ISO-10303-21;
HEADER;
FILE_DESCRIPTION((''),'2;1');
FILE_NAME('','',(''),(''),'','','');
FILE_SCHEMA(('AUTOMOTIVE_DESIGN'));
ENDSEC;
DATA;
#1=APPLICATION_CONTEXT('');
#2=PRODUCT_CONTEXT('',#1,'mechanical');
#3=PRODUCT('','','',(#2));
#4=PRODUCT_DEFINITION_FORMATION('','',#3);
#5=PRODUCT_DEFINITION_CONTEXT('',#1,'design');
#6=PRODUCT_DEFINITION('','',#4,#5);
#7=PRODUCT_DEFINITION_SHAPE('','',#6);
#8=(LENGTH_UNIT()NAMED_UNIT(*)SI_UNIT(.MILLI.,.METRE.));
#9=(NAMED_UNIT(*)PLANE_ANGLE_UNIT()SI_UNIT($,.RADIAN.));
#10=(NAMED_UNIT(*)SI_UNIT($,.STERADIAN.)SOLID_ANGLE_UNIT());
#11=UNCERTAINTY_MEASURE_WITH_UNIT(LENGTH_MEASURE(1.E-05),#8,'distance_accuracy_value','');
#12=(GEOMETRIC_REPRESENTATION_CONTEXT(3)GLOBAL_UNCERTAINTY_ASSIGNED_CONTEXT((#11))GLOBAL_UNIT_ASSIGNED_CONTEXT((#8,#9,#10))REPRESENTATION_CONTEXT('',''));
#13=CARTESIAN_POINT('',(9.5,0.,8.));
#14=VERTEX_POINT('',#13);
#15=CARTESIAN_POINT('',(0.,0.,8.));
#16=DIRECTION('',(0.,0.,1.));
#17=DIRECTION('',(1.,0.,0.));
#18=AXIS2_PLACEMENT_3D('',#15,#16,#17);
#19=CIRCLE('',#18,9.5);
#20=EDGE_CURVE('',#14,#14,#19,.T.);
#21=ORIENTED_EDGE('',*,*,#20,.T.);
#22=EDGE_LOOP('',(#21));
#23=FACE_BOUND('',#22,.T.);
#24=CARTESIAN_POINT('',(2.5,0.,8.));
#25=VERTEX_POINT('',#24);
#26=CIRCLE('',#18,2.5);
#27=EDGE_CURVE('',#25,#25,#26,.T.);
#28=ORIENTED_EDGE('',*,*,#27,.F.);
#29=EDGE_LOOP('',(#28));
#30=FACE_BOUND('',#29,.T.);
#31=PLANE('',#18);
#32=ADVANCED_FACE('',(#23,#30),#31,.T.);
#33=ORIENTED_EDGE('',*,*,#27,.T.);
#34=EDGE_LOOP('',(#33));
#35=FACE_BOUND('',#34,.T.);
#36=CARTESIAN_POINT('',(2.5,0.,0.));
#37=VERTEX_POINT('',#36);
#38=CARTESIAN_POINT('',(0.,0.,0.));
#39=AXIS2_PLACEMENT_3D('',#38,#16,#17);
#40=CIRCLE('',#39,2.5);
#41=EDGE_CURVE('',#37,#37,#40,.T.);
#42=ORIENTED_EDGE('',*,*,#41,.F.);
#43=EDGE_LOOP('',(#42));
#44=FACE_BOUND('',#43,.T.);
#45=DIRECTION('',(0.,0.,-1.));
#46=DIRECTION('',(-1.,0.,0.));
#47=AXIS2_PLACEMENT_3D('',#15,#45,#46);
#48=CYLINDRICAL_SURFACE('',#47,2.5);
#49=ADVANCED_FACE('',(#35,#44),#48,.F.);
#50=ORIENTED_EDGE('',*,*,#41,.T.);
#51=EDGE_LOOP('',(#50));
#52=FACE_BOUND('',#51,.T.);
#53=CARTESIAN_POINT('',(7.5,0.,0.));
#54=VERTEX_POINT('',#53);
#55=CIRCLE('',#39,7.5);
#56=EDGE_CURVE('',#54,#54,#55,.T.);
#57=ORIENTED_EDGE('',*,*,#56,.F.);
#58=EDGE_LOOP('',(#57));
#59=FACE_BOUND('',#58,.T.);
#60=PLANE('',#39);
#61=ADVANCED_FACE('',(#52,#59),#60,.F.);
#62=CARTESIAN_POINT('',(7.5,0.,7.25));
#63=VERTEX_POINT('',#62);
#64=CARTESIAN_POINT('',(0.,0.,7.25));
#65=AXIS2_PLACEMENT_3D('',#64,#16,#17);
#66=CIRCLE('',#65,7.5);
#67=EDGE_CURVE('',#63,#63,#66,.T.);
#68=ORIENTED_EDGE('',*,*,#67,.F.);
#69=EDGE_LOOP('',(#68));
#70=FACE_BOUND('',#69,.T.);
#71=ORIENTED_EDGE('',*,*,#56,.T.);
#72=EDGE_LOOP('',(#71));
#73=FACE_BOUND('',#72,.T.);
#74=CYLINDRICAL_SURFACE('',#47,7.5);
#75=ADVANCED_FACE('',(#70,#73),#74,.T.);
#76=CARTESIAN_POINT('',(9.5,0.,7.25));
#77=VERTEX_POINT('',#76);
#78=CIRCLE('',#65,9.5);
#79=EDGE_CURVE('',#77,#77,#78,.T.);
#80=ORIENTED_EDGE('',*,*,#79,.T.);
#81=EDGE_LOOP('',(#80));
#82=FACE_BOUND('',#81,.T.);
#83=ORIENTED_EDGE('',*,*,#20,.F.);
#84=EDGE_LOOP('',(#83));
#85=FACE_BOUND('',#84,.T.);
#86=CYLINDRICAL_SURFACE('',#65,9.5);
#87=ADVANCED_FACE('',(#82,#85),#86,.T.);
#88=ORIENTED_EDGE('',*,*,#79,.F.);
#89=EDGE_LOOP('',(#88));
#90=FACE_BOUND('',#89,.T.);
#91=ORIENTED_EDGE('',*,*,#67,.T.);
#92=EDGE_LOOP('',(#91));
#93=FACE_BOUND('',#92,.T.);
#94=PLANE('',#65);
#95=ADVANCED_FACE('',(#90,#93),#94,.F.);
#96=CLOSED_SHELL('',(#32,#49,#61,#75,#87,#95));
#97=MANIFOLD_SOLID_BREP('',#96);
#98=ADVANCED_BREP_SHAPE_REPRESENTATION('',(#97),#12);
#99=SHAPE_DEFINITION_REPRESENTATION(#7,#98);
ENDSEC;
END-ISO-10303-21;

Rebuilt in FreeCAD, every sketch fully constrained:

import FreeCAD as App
import Part
import Sketcher
Q = App.Units.Quantity

doc = App.newDocument("Part")
body = doc.addObject("PartDesign::Body", "Body")

# Sketch on XY plane
sketch1 = body.newObject("Sketcher::SketchObject", "Sketch")
sketch1.AttachmentSupport = (doc.getObject("XY_Plane"), [""])
sketch1.MapMode = "FlatFace"
sketch1.addGeometry([
    Part.Circle(App.Vector(0, 0, 0), App.Vector(0, 0, 1), 7.5),
    Part.Circle(App.Vector(0, 0, 0), App.Vector(0, 0, 1), 2.5),
], False)
sketch1.addConstraint([
    Sketcher.Constraint("Coincident", 0, 3, -1, 1),
    Sketcher.Constraint("Coincident", 1, 3, -1, 1),
    Sketcher.Constraint("Diameter", 0, Q("15 mm")),
    Sketcher.Constraint("Diameter", 1, Q("5 mm")),
])
pad1 = body.newObject("PartDesign::Pad", "Pad")
pad1.Profile = sketch1
pad1.Length = 8

# Sketch on XY plane
sketch2 = body.newObject("Sketcher::SketchObject", "Sketch001")
sketch2.AttachmentSupport = (doc.getObject("XY_Plane"), [""])
sketch2.MapMode = "FlatFace"
sketch2.AttachmentOffset = App.Placement(App.Vector(0, 0, 8), App.Rotation())
sketch2.addGeometry([
    Part.Circle(App.Vector(0, 0, 0), App.Vector(0, 0, 1), 10),
    Part.Circle(App.Vector(0, 0, 0), App.Vector(0, 0, 1), 5),
], False)
sketch2.addConstraint([
    Sketcher.Constraint("Coincident", 0, 3, -1, 1),
    Sketcher.Constraint("Coincident", 1, 3, -1, 1),
    Sketcher.Constraint("Diameter", 0, Q("19 mm")),
    Sketcher.Constraint("Diameter", 1, Q("10 mm")),
])
pad2 = body.newObject("PartDesign::Pad", "Pad001")
pad2.Profile = sketch2
pad2.Length = 0.75
pad2.Reversed = True

doc.recompute()
